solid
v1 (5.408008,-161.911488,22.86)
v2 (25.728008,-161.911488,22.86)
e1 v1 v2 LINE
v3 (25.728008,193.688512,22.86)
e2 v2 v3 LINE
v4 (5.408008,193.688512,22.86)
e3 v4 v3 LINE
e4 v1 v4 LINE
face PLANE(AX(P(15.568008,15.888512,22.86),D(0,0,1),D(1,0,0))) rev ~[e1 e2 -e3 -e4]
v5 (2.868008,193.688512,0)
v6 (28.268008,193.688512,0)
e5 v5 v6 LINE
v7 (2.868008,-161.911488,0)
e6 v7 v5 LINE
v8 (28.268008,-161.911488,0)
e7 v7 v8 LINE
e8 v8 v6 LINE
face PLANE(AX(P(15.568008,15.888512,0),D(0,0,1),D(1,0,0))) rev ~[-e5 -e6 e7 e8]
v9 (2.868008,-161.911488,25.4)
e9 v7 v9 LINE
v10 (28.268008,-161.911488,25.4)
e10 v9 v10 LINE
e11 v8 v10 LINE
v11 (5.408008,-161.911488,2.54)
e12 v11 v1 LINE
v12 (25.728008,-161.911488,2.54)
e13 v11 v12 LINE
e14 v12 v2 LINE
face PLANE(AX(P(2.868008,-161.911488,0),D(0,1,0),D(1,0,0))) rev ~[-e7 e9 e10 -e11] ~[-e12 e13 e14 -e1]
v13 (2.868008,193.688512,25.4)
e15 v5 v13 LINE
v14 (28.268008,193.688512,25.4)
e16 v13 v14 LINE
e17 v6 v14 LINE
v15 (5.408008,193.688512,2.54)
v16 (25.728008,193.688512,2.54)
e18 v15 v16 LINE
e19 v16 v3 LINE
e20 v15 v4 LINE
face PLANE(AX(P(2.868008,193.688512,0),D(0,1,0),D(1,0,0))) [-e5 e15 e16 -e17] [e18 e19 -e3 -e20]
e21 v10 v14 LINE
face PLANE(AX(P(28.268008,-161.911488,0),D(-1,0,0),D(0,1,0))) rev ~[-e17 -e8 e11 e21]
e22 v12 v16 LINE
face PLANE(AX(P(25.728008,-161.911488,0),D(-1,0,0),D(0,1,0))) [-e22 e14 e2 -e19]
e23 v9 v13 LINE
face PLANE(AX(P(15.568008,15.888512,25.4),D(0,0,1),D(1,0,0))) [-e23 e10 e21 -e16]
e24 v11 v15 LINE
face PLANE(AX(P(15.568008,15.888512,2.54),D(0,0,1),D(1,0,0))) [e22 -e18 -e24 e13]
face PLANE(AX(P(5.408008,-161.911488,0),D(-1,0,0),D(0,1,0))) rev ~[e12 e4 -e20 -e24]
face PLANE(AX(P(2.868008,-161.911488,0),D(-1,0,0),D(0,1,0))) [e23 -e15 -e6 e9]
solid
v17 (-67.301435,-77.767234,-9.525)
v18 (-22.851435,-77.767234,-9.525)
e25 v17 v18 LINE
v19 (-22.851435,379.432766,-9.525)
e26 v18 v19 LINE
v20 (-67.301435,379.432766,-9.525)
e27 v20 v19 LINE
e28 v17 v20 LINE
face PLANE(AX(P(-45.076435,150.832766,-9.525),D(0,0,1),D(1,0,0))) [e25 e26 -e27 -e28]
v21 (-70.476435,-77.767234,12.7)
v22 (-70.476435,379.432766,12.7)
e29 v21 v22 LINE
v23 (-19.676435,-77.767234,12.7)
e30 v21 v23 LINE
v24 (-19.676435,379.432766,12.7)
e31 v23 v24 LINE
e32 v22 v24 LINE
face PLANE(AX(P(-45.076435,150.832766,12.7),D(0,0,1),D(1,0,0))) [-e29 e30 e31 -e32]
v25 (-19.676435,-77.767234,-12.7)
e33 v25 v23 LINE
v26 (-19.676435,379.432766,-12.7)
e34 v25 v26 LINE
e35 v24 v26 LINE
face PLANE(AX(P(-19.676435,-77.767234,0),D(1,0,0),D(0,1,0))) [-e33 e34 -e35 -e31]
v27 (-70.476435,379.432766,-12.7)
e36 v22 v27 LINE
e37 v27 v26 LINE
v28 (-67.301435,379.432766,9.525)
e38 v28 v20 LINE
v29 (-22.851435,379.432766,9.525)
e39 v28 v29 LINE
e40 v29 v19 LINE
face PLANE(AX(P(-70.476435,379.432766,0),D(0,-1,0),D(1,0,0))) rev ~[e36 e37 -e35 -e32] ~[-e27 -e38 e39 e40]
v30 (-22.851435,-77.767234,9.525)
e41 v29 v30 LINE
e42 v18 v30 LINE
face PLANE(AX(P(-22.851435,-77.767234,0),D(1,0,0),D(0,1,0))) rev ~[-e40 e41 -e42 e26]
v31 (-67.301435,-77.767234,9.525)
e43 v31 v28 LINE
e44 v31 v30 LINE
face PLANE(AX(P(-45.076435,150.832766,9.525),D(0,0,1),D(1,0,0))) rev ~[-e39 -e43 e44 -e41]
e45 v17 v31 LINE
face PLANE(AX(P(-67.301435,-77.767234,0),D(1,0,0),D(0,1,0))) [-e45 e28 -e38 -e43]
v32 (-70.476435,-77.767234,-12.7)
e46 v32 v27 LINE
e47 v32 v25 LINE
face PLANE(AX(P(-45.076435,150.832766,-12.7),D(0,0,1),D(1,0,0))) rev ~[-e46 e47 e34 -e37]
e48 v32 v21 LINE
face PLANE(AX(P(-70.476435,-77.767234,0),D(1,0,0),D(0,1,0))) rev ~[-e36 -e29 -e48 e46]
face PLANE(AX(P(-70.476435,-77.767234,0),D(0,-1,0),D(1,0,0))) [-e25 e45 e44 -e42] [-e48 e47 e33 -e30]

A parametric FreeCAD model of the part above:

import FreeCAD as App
import Part
import Sketcher

V = App.Vector
Q = App.Units.Quantity


def faces_at(feature, points):
    """Names of the faces that lie closest to the given points."""
    faces = feature.Shape.Faces
    near = lambda p: min(range(len(faces)), key=lambda i: faces[i].distToShape(Part.Vertex(*p))[0])
    return sorted({f"Face{near(p) + 1}" for p in points})

doc = App.newDocument("Part")
body = doc.addObject("PartDesign::Body", "Body")

# Sketch on XY plane
sketch1 = body.newObject("Sketcher::SketchObject", "Sketch")
sketch1.AttachmentSupport = (doc.getObject("XY_Plane"), [""])
sketch1.MapMode = "FlatFace"
sketch1.addGeometry([
    Part.LineSegment(V(-70.476435, 379.432766, 0), V(-70.476435, -77.767234, 0)),
    Part.LineSegment(V(-70.476435, -77.767234, 0), V(-19.676435, -77.767234, 0)),
    Part.LineSegment(V(-19.676435, -77.767234, 0), V(-19.676435, 379.432766, 0)),
    Part.LineSegment(V(-19.676435, 379.432766, 0), V(-70.476435, 379.432766, 0)),
], False)
sketch1.addConstraint([
    Sketcher.Constraint("Coincident", 0, 2, 1, 1),
    Sketcher.Constraint("Coincident", 1, 2, 2, 1),
    Sketcher.Constraint("Coincident", 2, 2, 3, 1),
    Sketcher.Constraint("Coincident", 3, 2, 0, 1),
    Sketcher.Constraint("Vertical", 0),
    Sketcher.Constraint("Horizontal", 1),
    Sketcher.Constraint("Vertical", 2),
    Sketcher.Constraint("Horizontal", 3),
    Sketcher.Constraint("DistanceX", 1, 1, 1, 2, Q("2 in")),
    Sketcher.Constraint("DistanceY", 0, 2, 0, 1, Q("18 in")),
    Sketcher.Constraint("DistanceX", 0, 2, -1, 1, 70.476435),
    Sketcher.Constraint("DistanceY", 0, 2, -1, 1, 77.767234),
])
pad1 = body.newObject("PartDesign::Pad", "Pad")
pad1.Profile = sketch1
pad1.Length = Q("1 in")
pad1.Midplane = True
doc.recompute()

thickness = body.newObject("PartDesign::Thickness", "Thickness")
thickness.Base = (pad1, faces_at(pad1, [(-45.076, 379.433, 0), (-45.076, -77.767, 0)]))
thickness.Value = Q("0.125 in")
thickness.Reversed = True
thickness.Join = "Arc"
body2 = doc.addObject("PartDesign::Body", "Body001")

# Sketch on XY plane
sketch2 = body2.newObject("Sketcher::SketchObject", "Sketch001")
sketch2.AttachmentSupport = (doc.getObject("XY_Plane001"), [""])
sketch2.MapMode = "FlatFace"
sketch2.addGeometry([
    Part.LineSegment(V(2.868008, 193.688512, 0), V(2.868008, -161.911488, 0)),
    Part.LineSegment(V(2.868008, -161.911488, 0), V(28.268008, -161.911488, 0)),
    Part.LineSegment(V(28.268008, -161.911488, 0), V(28.268008, 193.688512, 0)),
    Part.LineSegment(V(28.268008, 193.688512, 0), V(2.868008, 193.688512, 0)),
], False)
sketch2.addConstraint([
    Sketcher.Constraint("Coincident", 0, 2, 1, 1),
    Sketcher.Constraint("Coincident", 1, 2, 2, 1),
    Sketcher.Constraint("Coincident", 2, 2, 3, 1),
    Sketcher.Constraint("Coincident", 3, 2, 0, 1),
    Sketcher.Constraint("Vertical", 0),
    Sketcher.Constraint("Horizontal", 1),
    Sketcher.Constraint("Vertical", 2),
    Sketcher.Constraint("Horizontal", 3),
    Sketcher.Constraint("DistanceX", 1, 1, 1, 2, Q("1 in")),
    Sketcher.Constraint("DistanceY", 0, 2, 0, 1, Q("14 in")),
    Sketcher.Constraint("DistanceX", -1, 1, 0, 2, 2.868008),
    Sketcher.Constraint("DistanceY", 0, 2, -1, 1, 161.911488),
])
pad2 = body2.newObject("PartDesign::Pad", "Pad001")
pad2.Profile = sketch2
pad2.Length = Q("1 in")
doc.recompute()

thickness2 = body2.newObject("PartDesign::Thickness", "Thickness001")
thickness2.Base = (pad2, faces_at(pad2, [(15.568, 193.689, 12.7), (15.568, -161.911, 12.7)]))
thickness2.Value = Q("0.1 in")
thickness2.Reversed = True
thickness2.Join = "Arc"

doc.recompute()
